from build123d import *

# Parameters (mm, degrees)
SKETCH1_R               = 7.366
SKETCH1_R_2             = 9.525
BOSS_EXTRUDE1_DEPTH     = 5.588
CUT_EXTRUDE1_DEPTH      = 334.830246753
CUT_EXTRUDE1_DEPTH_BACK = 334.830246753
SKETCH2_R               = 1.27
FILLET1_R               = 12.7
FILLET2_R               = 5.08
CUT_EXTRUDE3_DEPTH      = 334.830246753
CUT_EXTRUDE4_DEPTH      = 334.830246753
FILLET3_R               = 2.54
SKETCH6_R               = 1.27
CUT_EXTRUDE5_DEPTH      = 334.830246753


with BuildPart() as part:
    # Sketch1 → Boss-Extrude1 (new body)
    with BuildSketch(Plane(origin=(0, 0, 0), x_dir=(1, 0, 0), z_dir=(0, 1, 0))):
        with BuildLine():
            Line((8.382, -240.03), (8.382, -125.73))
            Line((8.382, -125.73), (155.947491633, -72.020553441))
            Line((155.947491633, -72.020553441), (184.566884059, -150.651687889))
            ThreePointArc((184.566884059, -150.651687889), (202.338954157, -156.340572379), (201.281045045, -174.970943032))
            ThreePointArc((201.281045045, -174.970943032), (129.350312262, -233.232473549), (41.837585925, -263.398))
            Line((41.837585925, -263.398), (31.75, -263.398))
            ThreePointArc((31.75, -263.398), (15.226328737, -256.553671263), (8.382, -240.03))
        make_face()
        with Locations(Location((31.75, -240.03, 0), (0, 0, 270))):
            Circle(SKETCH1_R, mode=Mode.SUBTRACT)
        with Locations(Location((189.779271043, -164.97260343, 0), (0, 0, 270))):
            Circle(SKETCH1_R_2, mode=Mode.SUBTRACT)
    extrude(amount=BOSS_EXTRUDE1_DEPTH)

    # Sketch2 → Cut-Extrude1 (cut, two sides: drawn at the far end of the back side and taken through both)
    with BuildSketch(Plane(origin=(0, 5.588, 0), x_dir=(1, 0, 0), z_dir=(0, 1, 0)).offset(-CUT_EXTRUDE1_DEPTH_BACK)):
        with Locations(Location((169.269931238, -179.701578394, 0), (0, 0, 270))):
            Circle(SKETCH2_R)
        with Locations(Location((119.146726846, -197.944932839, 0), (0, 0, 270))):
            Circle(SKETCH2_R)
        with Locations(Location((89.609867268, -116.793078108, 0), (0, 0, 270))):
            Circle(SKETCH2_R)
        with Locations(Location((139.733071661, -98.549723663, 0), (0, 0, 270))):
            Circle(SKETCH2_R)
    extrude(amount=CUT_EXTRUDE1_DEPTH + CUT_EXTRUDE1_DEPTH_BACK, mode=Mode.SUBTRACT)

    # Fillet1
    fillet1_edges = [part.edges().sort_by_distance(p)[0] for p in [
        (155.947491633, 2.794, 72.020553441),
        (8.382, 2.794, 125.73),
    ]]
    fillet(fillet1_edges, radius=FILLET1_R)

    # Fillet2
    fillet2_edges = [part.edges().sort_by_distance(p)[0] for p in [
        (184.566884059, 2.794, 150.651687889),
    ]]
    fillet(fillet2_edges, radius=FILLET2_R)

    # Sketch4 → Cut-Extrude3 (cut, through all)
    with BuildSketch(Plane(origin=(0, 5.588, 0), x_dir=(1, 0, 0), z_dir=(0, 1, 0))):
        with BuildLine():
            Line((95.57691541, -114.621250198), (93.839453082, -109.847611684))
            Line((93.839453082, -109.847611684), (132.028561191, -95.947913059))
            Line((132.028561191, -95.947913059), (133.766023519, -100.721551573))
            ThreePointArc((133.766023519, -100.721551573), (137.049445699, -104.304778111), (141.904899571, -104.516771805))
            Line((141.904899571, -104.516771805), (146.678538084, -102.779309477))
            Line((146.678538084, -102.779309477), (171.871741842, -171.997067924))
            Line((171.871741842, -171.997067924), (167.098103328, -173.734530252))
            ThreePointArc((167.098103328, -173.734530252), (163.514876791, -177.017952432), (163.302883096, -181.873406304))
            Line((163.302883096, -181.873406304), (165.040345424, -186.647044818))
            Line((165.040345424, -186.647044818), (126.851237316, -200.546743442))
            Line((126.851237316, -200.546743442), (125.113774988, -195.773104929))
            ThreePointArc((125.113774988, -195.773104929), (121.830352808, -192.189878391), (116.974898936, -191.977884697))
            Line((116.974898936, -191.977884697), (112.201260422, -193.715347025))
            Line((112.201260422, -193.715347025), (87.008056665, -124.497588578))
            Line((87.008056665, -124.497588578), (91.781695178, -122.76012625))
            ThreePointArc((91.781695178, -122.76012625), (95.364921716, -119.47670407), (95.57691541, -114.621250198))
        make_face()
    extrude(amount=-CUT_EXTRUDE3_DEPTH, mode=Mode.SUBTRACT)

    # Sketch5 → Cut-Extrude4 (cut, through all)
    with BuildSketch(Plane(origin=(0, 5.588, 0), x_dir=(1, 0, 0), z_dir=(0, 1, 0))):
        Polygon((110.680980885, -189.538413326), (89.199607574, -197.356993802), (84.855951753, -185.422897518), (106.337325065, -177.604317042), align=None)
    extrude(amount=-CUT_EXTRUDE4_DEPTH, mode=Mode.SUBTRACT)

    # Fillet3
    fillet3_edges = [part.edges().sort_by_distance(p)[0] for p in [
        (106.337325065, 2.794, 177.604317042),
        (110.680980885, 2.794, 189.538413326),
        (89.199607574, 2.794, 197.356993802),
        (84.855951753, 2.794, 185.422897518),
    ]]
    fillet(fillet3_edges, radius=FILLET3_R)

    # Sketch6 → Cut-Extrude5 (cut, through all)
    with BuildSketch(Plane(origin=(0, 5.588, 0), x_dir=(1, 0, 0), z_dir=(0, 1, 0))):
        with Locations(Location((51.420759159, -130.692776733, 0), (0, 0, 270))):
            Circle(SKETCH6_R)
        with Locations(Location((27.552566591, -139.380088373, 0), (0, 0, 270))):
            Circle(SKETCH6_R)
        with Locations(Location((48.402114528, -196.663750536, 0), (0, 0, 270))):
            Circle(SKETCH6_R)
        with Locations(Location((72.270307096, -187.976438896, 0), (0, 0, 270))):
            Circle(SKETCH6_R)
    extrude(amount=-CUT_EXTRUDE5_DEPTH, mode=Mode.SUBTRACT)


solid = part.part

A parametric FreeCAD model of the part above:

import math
import FreeCAD as App
import Part
import Sketcher
from FreeCAD import Vector
Q = App.Units.Quantity


def edges_at(feature, points):
    """Names of the edges that pass closest to the given points."""
    edges = feature.Shape.Edges
    near = lambda p: min(range(len(edges)), key=lambda i: edges[i].distToShape(Part.Vertex(*p))[0])
    return sorted({f"Edge{near(p) + 1}" for p in points})

doc = App.newDocument("Part")
body = doc.addObject("PartDesign::Body", "Body")

sketch1 = body.newObject("Sketcher::SketchObject", "Sketch")
sketch1.AttachmentSupport = (doc.getObject("XZ_Plane"), [""])
sketch1.MapMode = "FlatFace"
sketch1.addGeometry([
    Part.LineSegment(Vector(8.382, 125.73, 0), Vector(8.382, 240.03, 0)),
    Part.ArcOfCircle(Part.Circle(Vector(31.75, 240.03, 0), Vector(0, 0, 1), 23.368), math.radians(90), math.radians(180)),
    Part.LineSegment(Vector(31.75, 263.398, 0), Vector(41.837586, 263.398, 0)),
    Part.ArcOfCircle(Part.Circle(Vector(0, 0, 0), Vector(0, 0, 1), 266.7), math.radians(41), math.radians(80.974656)),
    Part.ArcOfCircle(Part.Circle(Vector(189.779271, 164.972603, 0), Vector(0, 0, 1), 15.24), math.radians(-110), math.radians(41)),
    Part.LineSegment(Vector(184.566884, 150.651688, 0), Vector(155.947492, 72.020553, 0)),
    Part.LineSegment(Vector(155.947492, 72.020553, 0), Vector(8.382, 125.73, 0)),
    Part.Circle(Vector(31.75, 240.03, 0), Vector(0, 0, 1), 7.366),
    Part.Circle(Vector(189.779271, 164.972603, 0), Vector(0, 0, 1), 9.525),
], False)
sketch1.addConstraint([
    Sketcher.Constraint("Tangent", 0, 2, 1, 2),
    Sketcher.Constraint("Tangent", 1, 1, 2, 1),
    Sketcher.Constraint("Coincident", 2, 2, 3, 2),
    Sketcher.Constraint("Tangent", 3, 1, 4, 2),
    Sketcher.Constraint("Coincident", 4, 1, 5, 1),
    Sketcher.Constraint("Coincident", 5, 2, 6, 1),
    Sketcher.Constraint("Coincident", 6, 2, 0, 1),
    Sketcher.Constraint("Vertical", 0),
    Sketcher.Constraint("Horizontal", 2),
    Sketcher.Constraint("Coincident", 3, 3, -1, 1),
    Sketcher.Constraint("Coincident", 7, 3, 1, 3),
    Sketcher.Constraint("Coincident", 8, 3, 4, 3),
    Sketcher.Constraint("Perpendicular", 5, 6),
    Sketcher.Constraint("Radius", 3, Q("10.5 in")),
    Sketcher.Constraint("Radius", 4, Q("0.6 in")),
    Sketcher.Constraint("Diameter", 7, Q("0.58 in")),
    Sketcher.Constraint("Diameter", 8, Q("0.75 in")),
    Sketcher.Constraint("Radius", 1, Q("0.92 in")),
    Sketcher.Constraint("DistanceY", 0, 1, 0, 2, Q("4.5 in")),
    Sketcher.Constraint("Angle", 5, Q("-110 deg")),
    Sketcher.Constraint("DistanceX", -1, 1, 1, 3, Q("1.25 in")),
    Sketcher.Constraint("DistanceY", -1, 1, 1, 3, Q("9.45 in")),
    Sketcher.Constraint("DistanceX", -1, 1, 4, 3, Q("189.779271 mm")),
    Sketcher.Constraint("DistanceX", -1, 1, 5, 2, Q("155.947492 mm")),
])
pad1 = body.newObject("PartDesign::Pad", "Pad")
pad1.Profile = sketch1
pad1.Length = Q("0.22 in")
pad1.Reversed = True

sketch2 = body.newObject("Sketcher::SketchObject", "Sketch001")
sketch2.AttachmentSupport = (doc.getObject("XZ_Plane"), [""])
sketch2.MapMode = "FlatFace"
sketch2.AttachmentOffset = App.Placement(Vector(0, 0, -0.22 * 25.4), App.Rotation())
sketch2.addGeometry([
    Part.Circle(Vector(169.269931, 179.701578, 0), Vector(0, 0, 1), 1.27),
    Part.Circle(Vector(119.146727, 197.944933, 0), Vector(0, 0, 1), 1.27),
    Part.Circle(Vector(89.609867, 116.793078, 0), Vector(0, 0, 1), 1.27),
    Part.Circle(Vector(139.733072, 98.549724, 0), Vector(0, 0, 1), 1.27),
], False)
sketch2.addConstraint([
    Sketcher.Constraint("Equal", 0, 1),
    Sketcher.Constraint("Equal", 1, 2),
    Sketcher.Constraint("Equal", 2, 3),
    Sketcher.Constraint("Diameter", 0, Q("0.1 in")),
    Sketcher.Constraint("DistanceY", 2, 3, 0, 3, Q("62.9085 mm")),
    Sketcher.Constraint("DistanceX", -1, 1, 0, 3, Q("169.269931 mm")),
    Sketcher.Constraint("DistanceY", -1, 1, 0, 3, Q("179.701578 mm")),
    Sketcher.Constraint("DistanceX", -1, 1, 3, 3, Q("139.733072 mm")),
    Sketcher.Constraint("DistanceX", 2, 3, 1, 3, Q("29.53686 mm")),
    Sketcher.Constraint("DistanceY", 3, 3, 1, 3, Q("99.395209 mm")),
    Sketcher.Constraint("DistanceX", -1, 1, 1, 3, Q("119.146727 mm")),
    Sketcher.Constraint("DistanceY", -1, 1, 1, 3, Q("197.944933 mm")),
])
pocket1 = body.newObject("PartDesign::Pocket", "Pocket")
pocket1.Profile = sketch2
pocket1.Type = "ThroughAll"
pocket1.Midplane = True
doc.recompute()

fillet = body.newObject("PartDesign::Fillet", "Fillet")
fillet.Base = (pocket1, edges_at(pocket1, [(155.947, 2.794, 72.021), (8.382, 2.794, 125.73)]))
fillet.Radius = Q("0.5 in")
doc.recompute()

fillet2 = body.newObject("PartDesign::Fillet", "Fillet001")
fillet2.Base = (fillet, edges_at(fillet, [(184.567, 2.794, 150.652)]))
fillet2.Radius = Q("0.2 in")

sketch3 = body.newObject("Sketcher::SketchObject", "Sketch002")
sketch3.AttachmentSupport = (doc.getObject("XZ_Plane"), [""])
sketch3.MapMode = "FlatFace"
sketch3.AttachmentOffset = App.Placement(Vector(0, 0, -0.22 * 25.4), App.Rotation())
sketch3.addGeometry([
    Part.LineSegment(Vector(93.839453, 109.847612, 0), Vector(95.576915, 114.62125, 0)),
    Part.ArcOfCircle(Part.Circle(Vector(89.609867, 116.793078, 0), Vector(0, 0, 1), 6.35), math.radians(-20), math.radians(70)),
    Part.LineSegment(Vector(91.781695, 122.760126, 0), Vector(87.008057, 124.497589, 0)),
    Part.LineSegment(Vector(87.008057, 124.497589, 0), Vector(112.20126, 193.715347, 0)),
    Part.LineSegment(Vector(112.20126, 193.715347, 0), Vector(116.974899, 191.977885, 0)),
    Part.ArcOfCircle(Part.Circle(Vector(119.146727, 197.944933, 0), Vector(0, 0, 1), 6.35), math.radians(-110), math.radians(-20)),
    Part.LineSegment(Vector(125.113775, 195.773105, 0), Vector(126.851237, 200.546743, 0)),
    Part.LineSegment(Vector(126.851237, 200.546743, 0), Vector(165.040345, 186.647045, 0)),
    Part.LineSegment(Vector(165.040345, 186.647045, 0), Vector(163.302883, 181.873406, 0)),
    Part.ArcOfCircle(Part.Circle(Vector(169.269931, 179.701578, 0), Vector(0, 0, 1), 6.35), math.radians(160), math.radians(250)),
    Part.LineSegment(Vector(167.098103, 173.73453, 0), Vector(171.871742, 171.997068, 0)),
    Part.LineSegment(Vector(171.871742, 171.997068, 0), Vector(146.678538, 102.779309, 0)),
    Part.LineSegment(Vector(146.678538, 102.779309, 0), Vector(141.9049, 104.516772, 0)),
    Part.ArcOfCircle(Part.Circle(Vector(139.733072, 98.549724, 0), Vector(0, 0, 1), 6.35), math.radians(70), math.radians(160)),
    Part.LineSegment(Vector(133.766024, 100.721552, 0), Vector(132.028561, 95.947913, 0)),
    Part.LineSegment(Vector(132.028561, 95.947913, 0), Vector(93.839453, 109.847612, 0)),
], False)
sketch3.addConstraint([
    Sketcher.Constraint("Tangent", 0, 2, 1, 1),
    Sketcher.Constraint("Tangent", 1, 2, 2, 1),
    Sketcher.Constraint("Coincident", 2, 2, 3, 1),
    Sketcher.Constraint("Coincident", 3, 2, 4, 1),
    Sketcher.Constraint("Tangent", 4, 2, 5, 1),
    Sketcher.Constraint("Tangent", 5, 2, 6, 1),
    Sketcher.Constraint("Coincident", 6, 2, 7, 1),
    Sketcher.Constraint("Coincident", 7, 2, 8, 1),
    Sketcher.Constraint("Tangent", 8, 2, 9, 1),
    Sketcher.Constraint("Tangent", 9, 2, 10, 1),
    Sketcher.Constraint("Coincident", 10, 2, 11, 1),
    Sketcher.Constraint("Coincident", 11, 2, 12, 1),
    Sketcher.Constraint("Tangent", 12, 2, 13, 1),
    Sketcher.Constraint("Tangent", 13, 2, 14, 1),
    Sketcher.Constraint("Coincident", 14, 2, 15, 1),
    Sketcher.Constraint("Coincident", 15, 2, 0, 1),
    Sketcher.Constraint("Equal", 1, 5),
    Sketcher.Constraint("Equal", 5, 9),
    Sketcher.Constraint("Equal", 9, 13),
    Sketcher.Constraint("Perpendicular", 0, 2),
    Sketcher.Constraint("Perpendicular", 2, 3),
    Sketcher.Constraint("Perpendicular", 3, 4),
    Sketcher.Constraint("Perpendicular", 4, 6),
    Sketcher.Constraint("Perpendicular", 6, 7),
    Sketcher.Constraint("Perpendicular", 7, 8),
    Sketcher.Constraint("Perpendicular", 8, 10),
    Sketcher.Constraint("Perpendicular", 10, 11),
    Sketcher.Constraint("Perpendicular", 11, 12),
    Sketcher.Constraint("Perpendicular", 12, 14),
    Sketcher.Constraint("Perpendicular", 14, 15),
    Sketcher.Constraint("Equal", 0, 2),
    Sketcher.Constraint("Equal", 2, 4),
    Sketcher.Constraint("Equal", 4, 6),
    Sketcher.Constraint("Equal", 6, 8),
    Sketcher.Constraint("Equal", 8, 10),
    Sketcher.Constraint("Equal", 3, 11),
    Sketcher.Constraint("Equal", 10, 12),
    Sketcher.Constraint("Radius", 1, Q("0.25 in")),
    Sketcher.Constraint("Angle", 0, Q("70 deg")),
    Sketcher.Constraint("Distance", 0, Q("0.2 in")),
    Sketcher.Constraint("Distance", 3, Q("2.9 in")),
    Sketcher.Constraint("Distance", 7, Q("1.6 in")),
    Sketcher.Constraint("DistanceX", -1, 1, 4, 2, Q("116.974899 mm")),
    Sketcher.Constraint("DistanceY", -1, 1, 1, 3, Q("116.793078 mm")),
])
pocket2 = body.newObject("PartDesign::Pocket", "Pocket001")
pocket2.Profile = sketch3
pocket2.Type = "ThroughAll"
pocket2.Reversed = True

sketch4 = body.newObject("Sketcher::SketchObject", "Sketch003")
sketch4.AttachmentSupport = (doc.getObject("XZ_Plane"), [""])
sketch4.MapMode = "FlatFace"
sketch4.AttachmentOffset = App.Placement(Vector(0, 0, -0.22 * 25.4), App.Rotation())
sketch4.addGeometry([
    Part.LineSegment(Vector(89.199608, 197.356994, 0), Vector(110.680981, 189.538413, 0)),
    Part.LineSegment(Vector(110.680981, 189.538413, 0), Vector(106.337325, 177.604317, 0)),
    Part.LineSegment(Vector(106.337325, 177.604317, 0), Vector(84.855952, 185.422898, 0)),
    Part.LineSegment(Vector(84.855952, 185.422898, 0), Vector(89.199608, 197.356994, 0)),
], False)
sketch4.addConstraint([
    Sketcher.Constraint("Coincident", 0, 2, 1, 1),
    Sketcher.Constraint("Coincident", 1, 2, 2, 1),
    Sketcher.Constraint("Coincident", 2, 2, 3, 1),
    Sketcher.Constraint("Coincident", 3, 2, 0, 1),
    Sketcher.Constraint("Perpendicular", 0, 1),
    Sketcher.Constraint("Perpendicular", 1, 2),
    Sketcher.Constraint("Perpendicular", 2, 3),
    Sketcher.Constraint("Angle", 0, Q("-20 deg")),
    Sketcher.Constraint("Distance", 0, Q("0.9 in")),
    Sketcher.Constraint("Distance", 1, Q("0.5 in")),
    Sketcher.Constraint("DistanceX", -1, 1, 0, 2, Q("110.680981 mm")),
    Sketcher.Constraint("DistanceY", -1, 1, 0, 2, Q("189.538413 mm")),
])
pocket3 = body.newObject("PartDesign::Pocket", "Pocket002")
pocket3.Profile = sketch4
pocket3.Type = "ThroughAll"
pocket3.Reversed = True
doc.recompute()

fillet3 = body.newObject("PartDesign::Fillet", "Fillet002")
fillet3.Base = (pocket3, edges_at(pocket3, [
    (106.337, 2.794, 177.604),
    (110.681, 2.794, 189.538),
    (89.2, 2.794, 197.357),
    (84.856, 2.794, 185.423),
]))
fillet3.Radius = Q("0.1 in")

sketch5 = body.newObject("Sketcher::SketchObject", "Sketch004")
sketch5.AttachmentSupport = (doc.getObject("XZ_Plane"), [""])
sketch5.MapMode = "FlatFace"
sketch5.AttachmentOffset = App.Placement(Vector(0, 0, -0.22 * 25.4), App.Rotation())
sketch5.addGeometry([
    Part.Circle(Vector(51.420759, 130.692777, 0), Vector(0, 0, 1), 1.27),
    Part.Circle(Vector(27.552567, 139.380088, 0), Vector(0, 0, 1), 1.27),
    Part.Circle(Vector(48.402115, 196.663751, 0), Vector(0, 0, 1), 1.27),
    Part.Circle(Vector(72.270307, 187.976439, 0), Vector(0, 0, 1), 1.27),
], False)
sketch5.addConstraint([
    Sketcher.Constraint("Equal", 0, 1),
    Sketcher.Constraint("Equal", 1, 2),
    Sketcher.Constraint("Equal", 2, 3),
    Sketcher.Constraint("Diameter", 0, Q("0.1 in")),
    Sketcher.Constraint("DistanceX", -1, 1, 0, 3, Q("51.420759 mm")),
    Sketcher.Constraint("DistanceY", -1, 1, 1, 3, Q("139.380088 mm")),
    Sketcher.Constraint("DistanceY", -1, 1, 2, 3, Q("196.663751 mm")),
    Sketcher.Constraint("DistanceY", -1, 1, 3, 3, Q("187.976439 mm")),
    Sketcher.Constraint("DistanceY", 0, 3, 1, 3, Q("8.687312 mm")),
    Sketcher.Constraint("DistanceX", 1, 3, 3, 3, Q("44.717741 mm")),
    Sketcher.Constraint("DistanceX", -1, 1, 1, 3, Q("27.552567 mm")),
    Sketcher.Constraint("DistanceX", -1, 1, 2, 3, Q("48.402115 mm")),
])
pocket4 = body.newObject("PartDesign::Pocket", "Pocket003")
pocket4.Profile = sketch5
pocket4.Type = "ThroughAll"
pocket4.Reversed = True

doc.recompute()
